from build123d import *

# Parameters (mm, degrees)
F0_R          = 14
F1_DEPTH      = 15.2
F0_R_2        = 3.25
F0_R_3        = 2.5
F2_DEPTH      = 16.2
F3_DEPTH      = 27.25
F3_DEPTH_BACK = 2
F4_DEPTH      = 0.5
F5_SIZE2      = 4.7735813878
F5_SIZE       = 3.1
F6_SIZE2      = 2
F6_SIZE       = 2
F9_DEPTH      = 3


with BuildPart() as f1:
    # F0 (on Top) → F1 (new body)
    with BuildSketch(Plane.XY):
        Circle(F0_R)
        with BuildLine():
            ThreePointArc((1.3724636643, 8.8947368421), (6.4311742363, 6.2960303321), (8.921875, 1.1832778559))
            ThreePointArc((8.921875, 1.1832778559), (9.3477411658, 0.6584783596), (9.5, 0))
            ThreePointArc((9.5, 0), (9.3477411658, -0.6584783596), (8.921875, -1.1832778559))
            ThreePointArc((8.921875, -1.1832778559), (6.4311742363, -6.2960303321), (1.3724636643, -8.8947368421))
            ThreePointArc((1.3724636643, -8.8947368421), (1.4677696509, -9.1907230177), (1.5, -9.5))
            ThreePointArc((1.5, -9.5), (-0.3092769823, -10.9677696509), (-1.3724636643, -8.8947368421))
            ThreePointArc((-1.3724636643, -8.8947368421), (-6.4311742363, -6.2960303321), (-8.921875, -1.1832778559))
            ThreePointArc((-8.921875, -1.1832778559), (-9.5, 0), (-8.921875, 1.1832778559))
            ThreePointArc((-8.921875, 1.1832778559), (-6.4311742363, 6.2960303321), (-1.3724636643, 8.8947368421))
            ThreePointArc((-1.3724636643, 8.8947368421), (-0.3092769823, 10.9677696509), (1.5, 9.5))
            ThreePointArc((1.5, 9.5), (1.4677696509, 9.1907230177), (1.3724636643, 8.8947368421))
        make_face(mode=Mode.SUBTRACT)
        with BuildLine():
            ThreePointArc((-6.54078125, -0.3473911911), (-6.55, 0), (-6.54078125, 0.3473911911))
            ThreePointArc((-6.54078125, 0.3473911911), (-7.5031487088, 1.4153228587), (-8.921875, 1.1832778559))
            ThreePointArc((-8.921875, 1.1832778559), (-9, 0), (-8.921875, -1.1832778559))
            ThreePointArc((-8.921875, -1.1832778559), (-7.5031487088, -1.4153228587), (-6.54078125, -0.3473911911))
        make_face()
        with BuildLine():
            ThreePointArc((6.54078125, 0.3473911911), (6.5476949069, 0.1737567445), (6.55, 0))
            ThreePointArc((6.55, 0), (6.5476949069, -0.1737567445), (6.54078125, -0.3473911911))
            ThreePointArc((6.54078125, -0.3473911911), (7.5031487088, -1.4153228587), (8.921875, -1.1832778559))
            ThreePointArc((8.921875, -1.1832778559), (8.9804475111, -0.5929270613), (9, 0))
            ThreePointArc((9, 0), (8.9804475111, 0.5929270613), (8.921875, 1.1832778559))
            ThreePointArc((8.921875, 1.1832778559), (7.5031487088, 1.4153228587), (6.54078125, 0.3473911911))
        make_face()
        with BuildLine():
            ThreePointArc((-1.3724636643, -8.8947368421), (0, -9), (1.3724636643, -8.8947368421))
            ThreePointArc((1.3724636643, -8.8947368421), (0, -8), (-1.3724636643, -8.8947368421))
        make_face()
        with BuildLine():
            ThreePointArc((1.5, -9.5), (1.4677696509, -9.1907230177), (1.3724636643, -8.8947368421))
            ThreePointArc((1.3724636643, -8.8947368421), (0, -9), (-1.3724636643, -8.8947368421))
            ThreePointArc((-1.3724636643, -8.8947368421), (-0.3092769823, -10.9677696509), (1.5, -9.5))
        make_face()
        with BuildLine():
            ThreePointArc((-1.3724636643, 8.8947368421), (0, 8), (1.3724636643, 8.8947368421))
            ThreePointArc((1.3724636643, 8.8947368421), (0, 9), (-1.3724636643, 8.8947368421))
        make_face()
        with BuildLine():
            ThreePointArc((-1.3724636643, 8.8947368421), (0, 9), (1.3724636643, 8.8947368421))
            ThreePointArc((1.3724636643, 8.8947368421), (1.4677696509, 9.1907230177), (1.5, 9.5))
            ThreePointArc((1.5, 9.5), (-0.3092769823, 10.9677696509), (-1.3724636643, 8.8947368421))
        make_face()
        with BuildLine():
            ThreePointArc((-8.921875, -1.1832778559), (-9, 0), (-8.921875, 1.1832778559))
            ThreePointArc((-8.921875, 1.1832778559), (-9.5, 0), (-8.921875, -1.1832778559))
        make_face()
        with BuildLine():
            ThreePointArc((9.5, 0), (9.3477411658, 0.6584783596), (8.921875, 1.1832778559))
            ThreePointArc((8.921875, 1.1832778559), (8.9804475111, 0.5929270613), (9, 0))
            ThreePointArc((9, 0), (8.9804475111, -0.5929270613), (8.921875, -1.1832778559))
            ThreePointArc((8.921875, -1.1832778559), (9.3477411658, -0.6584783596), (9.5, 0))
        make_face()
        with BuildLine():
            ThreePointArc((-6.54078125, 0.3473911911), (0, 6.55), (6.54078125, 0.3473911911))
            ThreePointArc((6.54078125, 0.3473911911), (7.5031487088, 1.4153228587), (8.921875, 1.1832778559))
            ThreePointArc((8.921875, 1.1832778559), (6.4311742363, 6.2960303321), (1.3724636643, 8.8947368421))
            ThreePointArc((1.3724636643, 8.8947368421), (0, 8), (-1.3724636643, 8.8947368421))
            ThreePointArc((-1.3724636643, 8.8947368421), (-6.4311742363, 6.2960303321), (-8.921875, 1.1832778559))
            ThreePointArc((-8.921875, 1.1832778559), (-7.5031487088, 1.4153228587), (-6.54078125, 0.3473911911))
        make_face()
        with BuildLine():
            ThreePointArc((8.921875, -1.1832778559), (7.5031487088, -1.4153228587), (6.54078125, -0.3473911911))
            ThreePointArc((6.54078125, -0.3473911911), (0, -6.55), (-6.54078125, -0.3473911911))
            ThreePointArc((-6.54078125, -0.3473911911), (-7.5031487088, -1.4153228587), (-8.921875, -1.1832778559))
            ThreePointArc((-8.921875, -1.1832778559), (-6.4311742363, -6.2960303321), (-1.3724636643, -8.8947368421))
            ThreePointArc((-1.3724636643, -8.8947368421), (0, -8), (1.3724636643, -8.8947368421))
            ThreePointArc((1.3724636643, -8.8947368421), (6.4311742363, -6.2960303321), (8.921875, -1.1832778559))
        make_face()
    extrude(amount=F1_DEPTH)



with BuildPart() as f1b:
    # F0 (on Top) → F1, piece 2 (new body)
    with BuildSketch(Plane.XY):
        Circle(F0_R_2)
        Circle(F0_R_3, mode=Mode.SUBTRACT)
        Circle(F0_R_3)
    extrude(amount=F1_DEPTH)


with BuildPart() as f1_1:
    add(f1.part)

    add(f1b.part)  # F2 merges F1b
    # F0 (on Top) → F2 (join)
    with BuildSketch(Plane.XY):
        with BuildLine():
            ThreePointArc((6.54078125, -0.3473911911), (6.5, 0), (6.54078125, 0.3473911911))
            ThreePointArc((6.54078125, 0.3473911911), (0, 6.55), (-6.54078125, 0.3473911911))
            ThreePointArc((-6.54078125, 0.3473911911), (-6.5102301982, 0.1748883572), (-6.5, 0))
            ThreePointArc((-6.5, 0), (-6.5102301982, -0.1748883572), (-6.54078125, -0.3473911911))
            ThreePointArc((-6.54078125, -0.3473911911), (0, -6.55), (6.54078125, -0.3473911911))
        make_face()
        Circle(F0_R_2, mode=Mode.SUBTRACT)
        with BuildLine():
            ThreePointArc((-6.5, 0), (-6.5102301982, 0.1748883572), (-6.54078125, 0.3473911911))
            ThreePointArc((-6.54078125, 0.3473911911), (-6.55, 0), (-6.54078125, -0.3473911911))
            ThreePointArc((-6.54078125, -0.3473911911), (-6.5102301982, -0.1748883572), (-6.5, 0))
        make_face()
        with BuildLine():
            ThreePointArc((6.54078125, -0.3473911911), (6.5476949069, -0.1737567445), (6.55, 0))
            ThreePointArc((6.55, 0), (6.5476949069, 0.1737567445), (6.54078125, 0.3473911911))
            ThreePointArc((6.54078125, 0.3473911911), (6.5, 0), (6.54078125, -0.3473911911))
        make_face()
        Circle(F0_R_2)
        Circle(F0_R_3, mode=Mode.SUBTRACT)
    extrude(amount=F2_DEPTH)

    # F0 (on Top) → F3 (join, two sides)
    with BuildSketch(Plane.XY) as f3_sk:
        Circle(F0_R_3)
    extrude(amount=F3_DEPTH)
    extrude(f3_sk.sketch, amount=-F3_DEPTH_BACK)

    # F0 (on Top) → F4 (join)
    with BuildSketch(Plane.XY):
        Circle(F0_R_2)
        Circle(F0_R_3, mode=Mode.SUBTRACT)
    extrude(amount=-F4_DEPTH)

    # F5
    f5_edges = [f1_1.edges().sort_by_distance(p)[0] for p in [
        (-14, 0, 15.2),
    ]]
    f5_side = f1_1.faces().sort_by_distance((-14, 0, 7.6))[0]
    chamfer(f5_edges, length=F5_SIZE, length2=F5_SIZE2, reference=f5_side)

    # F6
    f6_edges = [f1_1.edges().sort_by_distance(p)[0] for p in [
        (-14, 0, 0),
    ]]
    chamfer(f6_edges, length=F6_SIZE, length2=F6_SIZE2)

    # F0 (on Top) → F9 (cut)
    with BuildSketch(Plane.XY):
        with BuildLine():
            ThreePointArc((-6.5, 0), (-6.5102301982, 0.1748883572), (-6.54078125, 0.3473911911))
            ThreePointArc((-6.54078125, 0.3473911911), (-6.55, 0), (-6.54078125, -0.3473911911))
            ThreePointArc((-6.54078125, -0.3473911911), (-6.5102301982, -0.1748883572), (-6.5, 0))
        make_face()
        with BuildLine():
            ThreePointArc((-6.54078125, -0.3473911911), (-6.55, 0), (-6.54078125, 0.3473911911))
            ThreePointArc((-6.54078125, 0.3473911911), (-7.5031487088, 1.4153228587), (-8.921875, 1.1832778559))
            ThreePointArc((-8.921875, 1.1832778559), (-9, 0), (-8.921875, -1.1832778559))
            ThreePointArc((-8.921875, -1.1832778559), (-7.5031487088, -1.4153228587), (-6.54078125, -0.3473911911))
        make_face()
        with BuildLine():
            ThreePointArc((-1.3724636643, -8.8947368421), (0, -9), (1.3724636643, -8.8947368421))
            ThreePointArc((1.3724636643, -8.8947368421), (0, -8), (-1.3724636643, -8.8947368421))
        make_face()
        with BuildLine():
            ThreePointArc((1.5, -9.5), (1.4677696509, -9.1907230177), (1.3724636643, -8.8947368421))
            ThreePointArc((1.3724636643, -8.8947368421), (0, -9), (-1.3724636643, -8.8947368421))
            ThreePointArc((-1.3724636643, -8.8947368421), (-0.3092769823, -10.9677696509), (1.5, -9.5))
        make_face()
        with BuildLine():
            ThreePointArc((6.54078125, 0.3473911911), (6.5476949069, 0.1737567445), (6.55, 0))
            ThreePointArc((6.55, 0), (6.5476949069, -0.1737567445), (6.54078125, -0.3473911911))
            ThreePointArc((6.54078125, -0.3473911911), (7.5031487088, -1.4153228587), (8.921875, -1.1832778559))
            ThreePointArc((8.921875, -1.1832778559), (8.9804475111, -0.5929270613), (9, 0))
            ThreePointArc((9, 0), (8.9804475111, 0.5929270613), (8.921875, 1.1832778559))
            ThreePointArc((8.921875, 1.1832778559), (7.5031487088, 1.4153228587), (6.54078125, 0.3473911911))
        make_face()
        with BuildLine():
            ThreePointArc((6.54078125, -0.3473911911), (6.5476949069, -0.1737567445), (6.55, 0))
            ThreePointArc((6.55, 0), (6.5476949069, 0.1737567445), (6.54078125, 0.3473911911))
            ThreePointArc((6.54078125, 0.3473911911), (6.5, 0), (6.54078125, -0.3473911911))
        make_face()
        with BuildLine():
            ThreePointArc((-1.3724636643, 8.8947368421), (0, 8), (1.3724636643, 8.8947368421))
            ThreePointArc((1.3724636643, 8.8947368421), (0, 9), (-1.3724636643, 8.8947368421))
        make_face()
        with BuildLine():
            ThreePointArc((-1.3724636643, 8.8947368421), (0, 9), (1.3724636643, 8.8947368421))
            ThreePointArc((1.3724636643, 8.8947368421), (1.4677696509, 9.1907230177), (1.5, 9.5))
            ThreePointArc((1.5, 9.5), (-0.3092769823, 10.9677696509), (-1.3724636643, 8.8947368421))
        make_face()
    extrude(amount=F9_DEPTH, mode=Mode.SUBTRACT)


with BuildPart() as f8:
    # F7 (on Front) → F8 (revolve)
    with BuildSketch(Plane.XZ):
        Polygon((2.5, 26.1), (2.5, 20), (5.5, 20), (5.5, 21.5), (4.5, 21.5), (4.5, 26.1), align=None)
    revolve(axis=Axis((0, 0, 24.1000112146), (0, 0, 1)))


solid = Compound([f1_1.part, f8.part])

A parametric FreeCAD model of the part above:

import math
import FreeCAD as App
import Part
import Sketcher

V = App.Vector


def edges_at(feature, points):
    """Names of the edges that pass closest to the given points."""
    edges = feature.Shape.Edges
    near = lambda p: min(range(len(edges)), key=lambda i: edges[i].distToShape(Part.Vertex(*p))[0])
    return sorted({f"Edge{near(p) + 1}" for p in points})


def add_polygon(sketch, points):
    """Adds a closed chain of lines whose ends are joined by coincident constraints."""
    first, n = sketch.GeometryCount, len(points)
    for a, b in zip(points, points[1:] + points[:1]):
        sketch.addGeometry(Part.LineSegment(App.Vector(*a, 0), App.Vector(*b, 0)), False)
    for i in range(n):
        sketch.addConstraint(Sketcher.Constraint("Coincident", first + i, 2, first + (i + 1) % n, 1))

doc = App.newDocument("Part")
params = doc.addObject("Spreadsheet::Sheet", "Params")
for row, (alias, value) in enumerate([
    ("sketch1_diameter", "28 mm"),
    ("sketch1_radius", "6.55 mm"),
    ("pad1_length", "15.2 mm"),
    ("sketch2_diameter", "6.5 mm"),
    ("pad2_length", "15.2 mm"),
    ("sketch3_diameter", "5 mm"),
    ("sketch3_radius", "6.55 mm"),
    ("pad3_length", "16.2 mm"),
    ("sketch4_diameter", "5 mm"),
    ("pad4_length", "27.25 mm"),
    ("pad4_length2", "2 mm"),
    ("sketch5_diameter", "5 mm"),
    ("sketch5_diameter2", "6.5 mm"),
    ("pad5_length", "0.5 mm"),
    ("chamfer_size", "3.1 mm"),
    ("chamfer_size2", "4.773581 mm"),
    ("chamfer2_size", "2 mm"),
    ("chamfer2_size2", "2 mm"),
    ("sketch6_radius", "9 mm"),
    ("sketch6_radius2", "1.5 mm"),
    ("pocket1_length", "3 mm"),
    ("sketch7_width", "3 mm"),
    ("sketch7_width2", "1 mm"),
    ("sketch7_height", "6.1 mm"),
    ("sketch7_height2", "1.5 mm"),
    ("revolution_angle", "360 deg"),
], start=1):
    params.set(f"A{row}", alias)
    params.set(f"B{row}", "=" + value)
    params.setAlias(f"B{row}", alias)

body = doc.addObject("PartDesign::Body", "Body")

# Sketch on XY plane
sketch1 = doc.addObject("Sketcher::SketchObject", "Sketch")
body.addObject(sketch1)
sketch1.AttachmentSupport = (doc.XY_Plane, [""])
sketch1.MapMode = "FlatFace"
sketch1.addGeometry([
    Part.Circle(V(0, 0, 0), V(0, 0, 1), 14),  # 0
    Part.ArcOfCircle(Part.Circle(V(0, 0, 0), V(0, 0, 1), 6.55), math.radians(0), math.radians(3.04)),  # 1
    Part.ArcOfCircle(Part.Circle(V(0, 0, 0), V(0, 0, 1), 6.55), math.radians(-3.04), math.radians(0)),  # 2
    Part.ArcOfCircle(Part.Circle(V(0, 0, 0), V(0, 0, 1), 6.55), math.radians(-177), math.radians(-3)),  # 3
    Part.ArcOfCircle(Part.Circle(V(0, 0, 0), V(0, 0, 1), 6.55), math.radians(176.96), math.radians(183.04)),  # 4
    Part.ArcOfCircle(Part.Circle(V(0, 0, 0), V(0, 0, 1), 6.55), math.radians(3), math.radians(177)),  # 5
], False)
sketch1.addConstraint([
    Sketcher.Constraint("Tangent", 1, 1, 2, 2),
    Sketcher.Constraint("Tangent", 2, 1, 3, 2),
    Sketcher.Constraint("Tangent", 3, 1, 4, 2),
    Sketcher.Constraint("Tangent", 4, 1, 5, 2),
    Sketcher.Constraint("Tangent", 5, 1, 1, 2),
    Sketcher.Constraint("Coincident", 0, 3, -1, 1),
    Sketcher.Constraint("Coincident", 1, 3, -1, 1),
    Sketcher.Constraint("Coincident", 3, 3, -1, 1),
    Sketcher.Constraint("PointOnObject", 1, 1, -1),
    Sketcher.Constraint("Horizontal", 2, 1, 3, 1),
    Sketcher.Constraint("Horizontal", 4, 1, 5, 1),
    Sketcher.Constraint("Vertical", 3, 1, 4, 1),
    Sketcher.Constraint("Diameter", 0, 28.0),
    Sketcher.Constraint("Radius", 1, 6.55),
    Sketcher.Constraint("DistanceX", -1, 1, 2, 1, 6.540781),
])
sketch1.setExpression("Constraints[12]", "Params.sketch1_diameter")
sketch1.setExpression("Constraints[13]", "Params.sketch1_radius")
pad1 = doc.addObject("PartDesign::Pad", "Pad")
body.addObject(pad1)
pad1.Profile = sketch1
pad1.setExpression("Length", "Params.pad1_length")
body2 = doc.addObject("PartDesign::Body", "Body001")

# Sketch on XY plane
sketch2 = doc.addObject("Sketcher::SketchObject", "Sketch001")
body2.addObject(sketch2)
sketch2.AttachmentSupport = (doc.getObject("XY_Plane001"), [""])
sketch2.MapMode = "FlatFace"
sketch2.addGeometry(Part.Circle(V(0, 0, 0), V(0, 0, 1), 3.2), False)
sketch2.addConstraint([
    Sketcher.Constraint("Coincident", 0, 3, -1, 1),
    Sketcher.Constraint("Diameter", 0, 6.5),
])
sketch2.setExpression("Constraints[1]", "Params.sketch2_diameter")
pad2 = doc.addObject("PartDesign::Pad", "Pad001")
body2.addObject(pad2)
pad2.Profile = sketch2
pad2.setExpression("Length", "Params.pad2_length")
body.AllowCompound = True
doc.recompute()

boolean = doc.addObject("PartDesign::Boolean", "Boolean")
body.addObject(boolean)
boolean.Type = "Fuse"
boolean.addObjects([body2])

# Sketch on XY plane
sketch3 = doc.addObject("Sketcher::SketchObject", "Sketch002")
body.addObject(sketch3)
sketch3.AttachmentSupport = (doc.XY_Plane, [""])
sketch3.MapMode = "FlatFace"
sketch3.addGeometry([
    Part.ArcOfCircle(Part.Circle(V(0, 0, 0), V(0, 0, 1), 6.55), math.radians(3), math.radians(177)),  # 0
    Part.ArcOfCircle(Part.Circle(V(0, 0, 0), V(0, 0, 1), 6.55), math.radians(176.96), math.radians(183.04)),  # 1
    Part.ArcOfCircle(Part.Circle(V(0, 0, 0), V(0, 0, 1), 6.55), math.radians(-177), math.radians(-3)),  # 2
    Part.ArcOfCircle(Part.Circle(V(0, 0, 0), V(0, 0, 1), 6.55), math.radians(-3.04), math.radians(0)),  # 3
    Part.ArcOfCircle(Part.Circle(V(0, 0, 0), V(0, 0, 1), 6.55), math.radians(0), math.radians(3.04)),  # 4
    Part.Circle(V(0, 0, 0), V(0, 0, 1), 2.5),  # 5
], False)
sketch3.addConstraint([
    Sketcher.Constraint("Tangent", 0, 2, 1, 1),
    Sketcher.Constraint("Tangent", 1, 2, 2, 1),
    Sketcher.Constraint("Tangent", 2, 2, 3, 1),
    Sketcher.Constraint("Tangent", 3, 2, 4, 1),
    Sketcher.Constraint("Tangent", 4, 2, 0, 1),
    Sketcher.Constraint("Coincident", 0, 3, -1, 1),
    Sketcher.Constraint("Coincident", 3, 3, -1, 1),
    Sketcher.Constraint("Coincident", 5, 3, -1, 1),
    Sketcher.Constraint("PointOnObject", 3, 2, -1),
    Sketcher.Constraint("Horizontal", 1, 2, 2, 2),
    Sketcher.Constraint("Horizontal", 0, 2, 4, 2),
    Sketcher.Constraint("Vertical", 0, 2, 1, 2),
    Sketcher.Constraint("Diameter", 5, 5.0),
    Sketcher.Constraint("Radius", 0, 6.55),
    Sketcher.Constraint("DistanceX", 0, 2, -1, 1, 6.540781),
])
sketch3.setExpression("Constraints[12]", "Params.sketch3_diameter")
sketch3.setExpression("Constraints[13]", "Params.sketch3_radius")
pad3 = doc.addObject("PartDesign::Pad", "Pad002")
body.addObject(pad3)
pad3.Profile = sketch3
pad3.setExpression("Length", "Params.pad3_length")

# Sketch on XY plane
sketch4 = doc.addObject("Sketcher::SketchObject", "Sketch003")
body.addObject(sketch4)
sketch4.AttachmentSupport = (doc.XY_Plane, [""])
sketch4.MapMode = "FlatFace"
sketch4.addGeometry(Part.Circle(V(0, 0, 0), V(0, 0, 1), 2.5), False)
sketch4.addConstraint([
    Sketcher.Constraint("Coincident", 0, 3, -1, 1),
    Sketcher.Constraint("Diameter", 0, 5.0),
])
sketch4.setExpression("Constraints[1]", "Params.sketch4_diameter")
pad4 = doc.addObject("PartDesign::Pad", "Pad003")
body.addObject(pad4)
pad4.Profile = sketch4
pad4.Type = "TwoLengths"
pad4.setExpression("Length", "Params.pad4_length")
pad4.setExpression("Length2", "Params.pad4_length2")

# Sketch on XY plane
sketch5 = doc.addObject("Sketcher::SketchObject", "Sketch004")
body.addObject(sketch5)
sketch5.AttachmentSupport = (doc.XY_Plane, [""])
sketch5.MapMode = "FlatFace"
sketch5.addGeometry([
    Part.Circle(V(0, 0, 0), V(0, 0, 1), 3.2),
    Part.Circle(V(0, 0, 0), V(0, 0, 1), 2.5),
], False)
sketch5.addConstraint([
    Sketcher.Constraint("Coincident", 0, 3, -1, 1),
    Sketcher.Constraint("Coincident", 1, 3, -1, 1),
    Sketcher.Constraint("Diameter", 1, 5.0),
    Sketcher.Constraint("Diameter", 0, 6.5),
])
sketch5.setExpression("Constraints[2]", "Params.sketch5_diameter")
sketch5.setExpression("Constraints[3]", "Params.sketch5_diameter2")
pad5 = doc.addObject("PartDesign::Pad", "Pad004")
body.addObject(pad5)
pad5.Profile = sketch5
pad5.setExpression("Length", "Params.pad5_length")
pad5.Reversed = True
doc.recompute()

chamfer = doc.addObject("PartDesign::Chamfer", "Chamfer")
body.addObject(chamfer)
chamfer.Base = (pad5, edges_at(pad5, [(-14, 0, 15.2)]))
chamfer.ChamferType = "Two distances"
chamfer.setExpression("Size", "Params.chamfer_size")
chamfer.setExpression("Size2", "Params.chamfer_size2")
doc.recompute()

chamfer2 = doc.addObject("PartDesign::Chamfer", "Chamfer001")
body.addObject(chamfer2)
chamfer2.Base = (chamfer, edges_at(chamfer, [(-14, 0, 0)]))
chamfer2.ChamferType = "Two distances"
chamfer2.setExpression("Size", "Params.chamfer2_size")
chamfer2.setExpression("Size2", "Params.chamfer2_size2")

# Sketch on XY plane
sketch6 = doc.addObject("Sketcher::SketchObject", "Sketch005")
body.addObject(sketch6)
sketch6.AttachmentSupport = (doc.XY_Plane, [""])
sketch6.MapMode = "FlatFace"
sketch6.addGeometry([
    Part.ArcOfCircle(Part.Circle(V(-8, 0, 0), V(0, 0, 1), 1.5), math.radians(0), math.radians(13.39)),  # 0
    Part.ArcOfCircle(Part.Circle(V(-8, 0, 0), V(0, 0, 1), 1.5), math.radians(13), math.radians(128)),  # 1
    Part.ArcOfCircle(Part.Circle(V(0, 0, 0), V(0, 0, 1), 9), math.radians(172.45), math.radians(187.55)),  # 2
    Part.ArcOfCircle(Part.Circle(V(-8, 0, 0), V(0, 0, 1), 1.5), math.radians(-128), math.radians(-13)),  # 3
    Part.ArcOfCircle(Part.Circle(V(-8, 0, 0), V(0, 0, 1), 1.5), math.radians(-13.39), math.radians(0)),  # 4
    Part.ArcOfCircle(Part.Circle(V(0, -9.5, 0), V(0, 0, 1), 1.5), math.radians(24), math.radians(156)),  # 5
    Part.ArcOfCircle(Part.Circle(V(0, -9.5, 0), V(0, 0, 1), 1.5), math.radians(156), math.radians(360)),  # 6
    Part.ArcOfCircle(Part.Circle(V(0, -9.5, 0), V(0, 0, 1), 1.5), math.radians(0), math.radians(24)),  # 7
    Part.ArcOfCircle(Part.Circle(V(8, 0, 0), V(0, 0, 1), 1.5), math.radians(-167), math.radians(-52)),  # 8
    Part.ArcOfCircle(Part.Circle(V(0, 0, 0), V(0, 0, 1), 9), math.radians(-7.55), math.radians(0)),  # 9
    Part.ArcOfCircle(Part.Circle(V(0, 0, 0), V(0, 0, 1), 9), math.radians(0), math.radians(7.55)),  # 10
    Part.ArcOfCircle(Part.Circle(V(8, 0, 0), V(0, 0, 1), 1.5), math.radians(52), math.radians(167)),  # 11
    Part.ArcOfCircle(Part.Circle(V(8, 0, 0), V(0, 0, 1), 1.5), math.radians(167), math.radians(193)),  # 12
    Part.ArcOfCircle(Part.Circle(V(0, 9.5, 0), V(0, 0, 1), 1.5), math.radians(-156), math.radians(-24)),  # 13
    Part.ArcOfCircle(Part.Circle(V(0, 9.5, 0), V(0, 0, 1), 1.5), math.radians(-24), math.radians(0)),  # 14
    Part.ArcOfCircle(Part.Circle(V(0, 9.5, 0), V(0, 0, 1), 1.5), math.radians(0), math.radians(204)),  # 15
], False)
sketch6.addConstraint([
    Sketcher.Constraint("Tangent", 0, 2, 1, 1),
    Sketcher.Constraint("Coincident", 1, 2, 2, 1),
    Sketcher.Constraint("Coincident", 2, 2, 3, 1),
    Sketcher.Constraint("Tangent", 3, 2, 4, 1),
    Sketcher.Constraint("Tangent", 4, 2, 0, 1),
    Sketcher.Constraint("Tangent", 5, 2, 6, 1),
    Sketcher.Constraint("Tangent", 6, 2, 7, 1),
    Sketcher.Constraint("Tangent", 7, 2, 5, 1),
    Sketcher.Constraint("Coincident", 8, 2, 9, 1),
    Sketcher.Constraint("Tangent", 9, 2, 10, 1),
    Sketcher.Constraint("Coincident", 10, 2, 11, 1),
    Sketcher.Constraint("Tangent", 11, 2, 12, 1),
    Sketcher.Constraint("Tangent", 12, 2, 8, 1),
    Sketcher.Constraint("Tangent", 13, 2, 14, 1),
    Sketcher.Constraint("Tangent", 14, 2, 15, 1),
    Sketcher.Constraint("Tangent", 15, 2, 13, 1),
    Sketcher.Constraint("Coincident", 2, 3, -1, 1),
    Sketcher.Constraint("Coincident", 9, 3, -1, 1),
    Sketcher.Constraint("Coincident", 3, 3, 0, 3),
    Sketcher.Constraint("Coincident", 11, 3, 8, 3),
    Sketcher.Constraint("Equal", 0, 1),
    Sketcher.Constraint("Equal", 4, 5),
    Sketcher.Constraint("Equal", 7, 8),
    Sketcher.Constraint("Equal", 2, 9),
    Sketcher.Constraint("Equal", 9, 10),
    Sketcher.Constraint("Equal", 12, 13),
    Sketcher.Constraint("Symmetric", 0, 3, 8, 3, -1, 1),
    Sketcher.Constraint("Symmetric", 5, 3, 13, 3, -1, 1),
    Sketcher.Constraint("Symmetric", 5, 2, 7, 2, -2),
    Sketcher.Constraint("Symmetric", 0, 2, 11, 2, -2),
    Sketcher.Constraint("PointOnObject", 4, 2, -1),
    Sketcher.Constraint("PointOnObject", 9, 2, -1),
    Sketcher.Constraint("Horizontal", 7, 3, 6, 2),
    Sketcher.Constraint("Horizontal", 3, 2, 12, 2),
    Sketcher.Constraint("Horizontal", 15, 3, 14, 2),
    Sketcher.Constraint("Horizontal", 13, 2, 15, 2),
    Sketcher.Constraint("Vertical", 0, 2, 3, 2),
    Sketcher.Constraint("Vertical", 7, 2, 13, 2),
    Sketcher.Constraint("Radius", 2, 9.0),
    Sketcher.Constraint("Radius", 0, 1.5),
    Sketcher.Constraint("DistanceX", 0, 3, -1, 1, 8.0),
    Sketcher.Constraint("DistanceY", 5, 3, -1, 1, 9.5),
    Sketcher.Constraint("DistanceX", 0, 2, -1, 1, 6.540781),
    Sketcher.Constraint("DistanceX", 5, 2, -1, 1, 1.372464),
])
sketch6.setExpression("Constraints[38]", "Params.sketch6_radius")
sketch6.setExpression("Constraints[39]", "Params.sketch6_radius2")
pocket1 = doc.addObject("PartDesign::Pocket", "Pocket")
body.addObject(pocket1)
pocket1.Profile = sketch6
pocket1.setExpression("Length", "Params.pocket1_length")
pocket1.Reversed = True
body3 = doc.addObject("PartDesign::Body", "Body002")

# Sketch on XZ plane
sketch7 = doc.addObject("Sketcher::SketchObject", "Sketch006")
body3.addObject(sketch7)
sketch7.AttachmentSupport = (doc.getObject("XZ_Plane002"), [""])
sketch7.MapMode = "FlatFace"
add_polygon(sketch7, [(2.5, 26.1), (2.5, 20), (5.5, 20), (5.5, 21.5), (4.5, 21.5), (4.5, 26.1)])  # lines 0-5
sketch7.addConstraint([
    Sketcher.Constraint("Vertical", 0),
    Sketcher.Constraint("Horizontal", 1),
    Sketcher.Constraint("Vertical", 2),
    Sketcher.Constraint("Horizontal", 3),
    Sketcher.Constraint("Vertical", 4),
    Sketcher.Constraint("Horizontal", 5),
    Sketcher.Constraint("DistanceX", 1, 1, 1, 2, 3.0),
    Sketcher.Constraint("DistanceX", 3, 2, 3, 1, 1.0),
    Sketcher.Constraint("DistanceY", 0, 2, 0, 1, 6.1),
    Sketcher.Constraint("DistanceY", 2, 1, 2, 2, 1.5),
    Sketcher.Constraint("DistanceY", -1, 1, 0, 2, 20.0),
    Sketcher.Constraint("DistanceX", -1, 1, 0, 2, 2.5),
])
sketch7.setExpression("Constraints[12]", "Params.sketch7_width")
sketch7.setExpression("Constraints[13]", "Params.sketch7_width2")
sketch7.setExpression("Constraints[14]", "Params.sketch7_height")
sketch7.setExpression("Constraints[15]", "Params.sketch7_height2")
revolution = doc.addObject("PartDesign::Revolution", "Revolution")
body3.addObject(revolution)
revolution.Profile = sketch7
revolution.ReferenceAxis = (sketch7, ["V_Axis"])
revolution.setExpression("Angle", "Params.revolution_angle")

doc.recompute()
